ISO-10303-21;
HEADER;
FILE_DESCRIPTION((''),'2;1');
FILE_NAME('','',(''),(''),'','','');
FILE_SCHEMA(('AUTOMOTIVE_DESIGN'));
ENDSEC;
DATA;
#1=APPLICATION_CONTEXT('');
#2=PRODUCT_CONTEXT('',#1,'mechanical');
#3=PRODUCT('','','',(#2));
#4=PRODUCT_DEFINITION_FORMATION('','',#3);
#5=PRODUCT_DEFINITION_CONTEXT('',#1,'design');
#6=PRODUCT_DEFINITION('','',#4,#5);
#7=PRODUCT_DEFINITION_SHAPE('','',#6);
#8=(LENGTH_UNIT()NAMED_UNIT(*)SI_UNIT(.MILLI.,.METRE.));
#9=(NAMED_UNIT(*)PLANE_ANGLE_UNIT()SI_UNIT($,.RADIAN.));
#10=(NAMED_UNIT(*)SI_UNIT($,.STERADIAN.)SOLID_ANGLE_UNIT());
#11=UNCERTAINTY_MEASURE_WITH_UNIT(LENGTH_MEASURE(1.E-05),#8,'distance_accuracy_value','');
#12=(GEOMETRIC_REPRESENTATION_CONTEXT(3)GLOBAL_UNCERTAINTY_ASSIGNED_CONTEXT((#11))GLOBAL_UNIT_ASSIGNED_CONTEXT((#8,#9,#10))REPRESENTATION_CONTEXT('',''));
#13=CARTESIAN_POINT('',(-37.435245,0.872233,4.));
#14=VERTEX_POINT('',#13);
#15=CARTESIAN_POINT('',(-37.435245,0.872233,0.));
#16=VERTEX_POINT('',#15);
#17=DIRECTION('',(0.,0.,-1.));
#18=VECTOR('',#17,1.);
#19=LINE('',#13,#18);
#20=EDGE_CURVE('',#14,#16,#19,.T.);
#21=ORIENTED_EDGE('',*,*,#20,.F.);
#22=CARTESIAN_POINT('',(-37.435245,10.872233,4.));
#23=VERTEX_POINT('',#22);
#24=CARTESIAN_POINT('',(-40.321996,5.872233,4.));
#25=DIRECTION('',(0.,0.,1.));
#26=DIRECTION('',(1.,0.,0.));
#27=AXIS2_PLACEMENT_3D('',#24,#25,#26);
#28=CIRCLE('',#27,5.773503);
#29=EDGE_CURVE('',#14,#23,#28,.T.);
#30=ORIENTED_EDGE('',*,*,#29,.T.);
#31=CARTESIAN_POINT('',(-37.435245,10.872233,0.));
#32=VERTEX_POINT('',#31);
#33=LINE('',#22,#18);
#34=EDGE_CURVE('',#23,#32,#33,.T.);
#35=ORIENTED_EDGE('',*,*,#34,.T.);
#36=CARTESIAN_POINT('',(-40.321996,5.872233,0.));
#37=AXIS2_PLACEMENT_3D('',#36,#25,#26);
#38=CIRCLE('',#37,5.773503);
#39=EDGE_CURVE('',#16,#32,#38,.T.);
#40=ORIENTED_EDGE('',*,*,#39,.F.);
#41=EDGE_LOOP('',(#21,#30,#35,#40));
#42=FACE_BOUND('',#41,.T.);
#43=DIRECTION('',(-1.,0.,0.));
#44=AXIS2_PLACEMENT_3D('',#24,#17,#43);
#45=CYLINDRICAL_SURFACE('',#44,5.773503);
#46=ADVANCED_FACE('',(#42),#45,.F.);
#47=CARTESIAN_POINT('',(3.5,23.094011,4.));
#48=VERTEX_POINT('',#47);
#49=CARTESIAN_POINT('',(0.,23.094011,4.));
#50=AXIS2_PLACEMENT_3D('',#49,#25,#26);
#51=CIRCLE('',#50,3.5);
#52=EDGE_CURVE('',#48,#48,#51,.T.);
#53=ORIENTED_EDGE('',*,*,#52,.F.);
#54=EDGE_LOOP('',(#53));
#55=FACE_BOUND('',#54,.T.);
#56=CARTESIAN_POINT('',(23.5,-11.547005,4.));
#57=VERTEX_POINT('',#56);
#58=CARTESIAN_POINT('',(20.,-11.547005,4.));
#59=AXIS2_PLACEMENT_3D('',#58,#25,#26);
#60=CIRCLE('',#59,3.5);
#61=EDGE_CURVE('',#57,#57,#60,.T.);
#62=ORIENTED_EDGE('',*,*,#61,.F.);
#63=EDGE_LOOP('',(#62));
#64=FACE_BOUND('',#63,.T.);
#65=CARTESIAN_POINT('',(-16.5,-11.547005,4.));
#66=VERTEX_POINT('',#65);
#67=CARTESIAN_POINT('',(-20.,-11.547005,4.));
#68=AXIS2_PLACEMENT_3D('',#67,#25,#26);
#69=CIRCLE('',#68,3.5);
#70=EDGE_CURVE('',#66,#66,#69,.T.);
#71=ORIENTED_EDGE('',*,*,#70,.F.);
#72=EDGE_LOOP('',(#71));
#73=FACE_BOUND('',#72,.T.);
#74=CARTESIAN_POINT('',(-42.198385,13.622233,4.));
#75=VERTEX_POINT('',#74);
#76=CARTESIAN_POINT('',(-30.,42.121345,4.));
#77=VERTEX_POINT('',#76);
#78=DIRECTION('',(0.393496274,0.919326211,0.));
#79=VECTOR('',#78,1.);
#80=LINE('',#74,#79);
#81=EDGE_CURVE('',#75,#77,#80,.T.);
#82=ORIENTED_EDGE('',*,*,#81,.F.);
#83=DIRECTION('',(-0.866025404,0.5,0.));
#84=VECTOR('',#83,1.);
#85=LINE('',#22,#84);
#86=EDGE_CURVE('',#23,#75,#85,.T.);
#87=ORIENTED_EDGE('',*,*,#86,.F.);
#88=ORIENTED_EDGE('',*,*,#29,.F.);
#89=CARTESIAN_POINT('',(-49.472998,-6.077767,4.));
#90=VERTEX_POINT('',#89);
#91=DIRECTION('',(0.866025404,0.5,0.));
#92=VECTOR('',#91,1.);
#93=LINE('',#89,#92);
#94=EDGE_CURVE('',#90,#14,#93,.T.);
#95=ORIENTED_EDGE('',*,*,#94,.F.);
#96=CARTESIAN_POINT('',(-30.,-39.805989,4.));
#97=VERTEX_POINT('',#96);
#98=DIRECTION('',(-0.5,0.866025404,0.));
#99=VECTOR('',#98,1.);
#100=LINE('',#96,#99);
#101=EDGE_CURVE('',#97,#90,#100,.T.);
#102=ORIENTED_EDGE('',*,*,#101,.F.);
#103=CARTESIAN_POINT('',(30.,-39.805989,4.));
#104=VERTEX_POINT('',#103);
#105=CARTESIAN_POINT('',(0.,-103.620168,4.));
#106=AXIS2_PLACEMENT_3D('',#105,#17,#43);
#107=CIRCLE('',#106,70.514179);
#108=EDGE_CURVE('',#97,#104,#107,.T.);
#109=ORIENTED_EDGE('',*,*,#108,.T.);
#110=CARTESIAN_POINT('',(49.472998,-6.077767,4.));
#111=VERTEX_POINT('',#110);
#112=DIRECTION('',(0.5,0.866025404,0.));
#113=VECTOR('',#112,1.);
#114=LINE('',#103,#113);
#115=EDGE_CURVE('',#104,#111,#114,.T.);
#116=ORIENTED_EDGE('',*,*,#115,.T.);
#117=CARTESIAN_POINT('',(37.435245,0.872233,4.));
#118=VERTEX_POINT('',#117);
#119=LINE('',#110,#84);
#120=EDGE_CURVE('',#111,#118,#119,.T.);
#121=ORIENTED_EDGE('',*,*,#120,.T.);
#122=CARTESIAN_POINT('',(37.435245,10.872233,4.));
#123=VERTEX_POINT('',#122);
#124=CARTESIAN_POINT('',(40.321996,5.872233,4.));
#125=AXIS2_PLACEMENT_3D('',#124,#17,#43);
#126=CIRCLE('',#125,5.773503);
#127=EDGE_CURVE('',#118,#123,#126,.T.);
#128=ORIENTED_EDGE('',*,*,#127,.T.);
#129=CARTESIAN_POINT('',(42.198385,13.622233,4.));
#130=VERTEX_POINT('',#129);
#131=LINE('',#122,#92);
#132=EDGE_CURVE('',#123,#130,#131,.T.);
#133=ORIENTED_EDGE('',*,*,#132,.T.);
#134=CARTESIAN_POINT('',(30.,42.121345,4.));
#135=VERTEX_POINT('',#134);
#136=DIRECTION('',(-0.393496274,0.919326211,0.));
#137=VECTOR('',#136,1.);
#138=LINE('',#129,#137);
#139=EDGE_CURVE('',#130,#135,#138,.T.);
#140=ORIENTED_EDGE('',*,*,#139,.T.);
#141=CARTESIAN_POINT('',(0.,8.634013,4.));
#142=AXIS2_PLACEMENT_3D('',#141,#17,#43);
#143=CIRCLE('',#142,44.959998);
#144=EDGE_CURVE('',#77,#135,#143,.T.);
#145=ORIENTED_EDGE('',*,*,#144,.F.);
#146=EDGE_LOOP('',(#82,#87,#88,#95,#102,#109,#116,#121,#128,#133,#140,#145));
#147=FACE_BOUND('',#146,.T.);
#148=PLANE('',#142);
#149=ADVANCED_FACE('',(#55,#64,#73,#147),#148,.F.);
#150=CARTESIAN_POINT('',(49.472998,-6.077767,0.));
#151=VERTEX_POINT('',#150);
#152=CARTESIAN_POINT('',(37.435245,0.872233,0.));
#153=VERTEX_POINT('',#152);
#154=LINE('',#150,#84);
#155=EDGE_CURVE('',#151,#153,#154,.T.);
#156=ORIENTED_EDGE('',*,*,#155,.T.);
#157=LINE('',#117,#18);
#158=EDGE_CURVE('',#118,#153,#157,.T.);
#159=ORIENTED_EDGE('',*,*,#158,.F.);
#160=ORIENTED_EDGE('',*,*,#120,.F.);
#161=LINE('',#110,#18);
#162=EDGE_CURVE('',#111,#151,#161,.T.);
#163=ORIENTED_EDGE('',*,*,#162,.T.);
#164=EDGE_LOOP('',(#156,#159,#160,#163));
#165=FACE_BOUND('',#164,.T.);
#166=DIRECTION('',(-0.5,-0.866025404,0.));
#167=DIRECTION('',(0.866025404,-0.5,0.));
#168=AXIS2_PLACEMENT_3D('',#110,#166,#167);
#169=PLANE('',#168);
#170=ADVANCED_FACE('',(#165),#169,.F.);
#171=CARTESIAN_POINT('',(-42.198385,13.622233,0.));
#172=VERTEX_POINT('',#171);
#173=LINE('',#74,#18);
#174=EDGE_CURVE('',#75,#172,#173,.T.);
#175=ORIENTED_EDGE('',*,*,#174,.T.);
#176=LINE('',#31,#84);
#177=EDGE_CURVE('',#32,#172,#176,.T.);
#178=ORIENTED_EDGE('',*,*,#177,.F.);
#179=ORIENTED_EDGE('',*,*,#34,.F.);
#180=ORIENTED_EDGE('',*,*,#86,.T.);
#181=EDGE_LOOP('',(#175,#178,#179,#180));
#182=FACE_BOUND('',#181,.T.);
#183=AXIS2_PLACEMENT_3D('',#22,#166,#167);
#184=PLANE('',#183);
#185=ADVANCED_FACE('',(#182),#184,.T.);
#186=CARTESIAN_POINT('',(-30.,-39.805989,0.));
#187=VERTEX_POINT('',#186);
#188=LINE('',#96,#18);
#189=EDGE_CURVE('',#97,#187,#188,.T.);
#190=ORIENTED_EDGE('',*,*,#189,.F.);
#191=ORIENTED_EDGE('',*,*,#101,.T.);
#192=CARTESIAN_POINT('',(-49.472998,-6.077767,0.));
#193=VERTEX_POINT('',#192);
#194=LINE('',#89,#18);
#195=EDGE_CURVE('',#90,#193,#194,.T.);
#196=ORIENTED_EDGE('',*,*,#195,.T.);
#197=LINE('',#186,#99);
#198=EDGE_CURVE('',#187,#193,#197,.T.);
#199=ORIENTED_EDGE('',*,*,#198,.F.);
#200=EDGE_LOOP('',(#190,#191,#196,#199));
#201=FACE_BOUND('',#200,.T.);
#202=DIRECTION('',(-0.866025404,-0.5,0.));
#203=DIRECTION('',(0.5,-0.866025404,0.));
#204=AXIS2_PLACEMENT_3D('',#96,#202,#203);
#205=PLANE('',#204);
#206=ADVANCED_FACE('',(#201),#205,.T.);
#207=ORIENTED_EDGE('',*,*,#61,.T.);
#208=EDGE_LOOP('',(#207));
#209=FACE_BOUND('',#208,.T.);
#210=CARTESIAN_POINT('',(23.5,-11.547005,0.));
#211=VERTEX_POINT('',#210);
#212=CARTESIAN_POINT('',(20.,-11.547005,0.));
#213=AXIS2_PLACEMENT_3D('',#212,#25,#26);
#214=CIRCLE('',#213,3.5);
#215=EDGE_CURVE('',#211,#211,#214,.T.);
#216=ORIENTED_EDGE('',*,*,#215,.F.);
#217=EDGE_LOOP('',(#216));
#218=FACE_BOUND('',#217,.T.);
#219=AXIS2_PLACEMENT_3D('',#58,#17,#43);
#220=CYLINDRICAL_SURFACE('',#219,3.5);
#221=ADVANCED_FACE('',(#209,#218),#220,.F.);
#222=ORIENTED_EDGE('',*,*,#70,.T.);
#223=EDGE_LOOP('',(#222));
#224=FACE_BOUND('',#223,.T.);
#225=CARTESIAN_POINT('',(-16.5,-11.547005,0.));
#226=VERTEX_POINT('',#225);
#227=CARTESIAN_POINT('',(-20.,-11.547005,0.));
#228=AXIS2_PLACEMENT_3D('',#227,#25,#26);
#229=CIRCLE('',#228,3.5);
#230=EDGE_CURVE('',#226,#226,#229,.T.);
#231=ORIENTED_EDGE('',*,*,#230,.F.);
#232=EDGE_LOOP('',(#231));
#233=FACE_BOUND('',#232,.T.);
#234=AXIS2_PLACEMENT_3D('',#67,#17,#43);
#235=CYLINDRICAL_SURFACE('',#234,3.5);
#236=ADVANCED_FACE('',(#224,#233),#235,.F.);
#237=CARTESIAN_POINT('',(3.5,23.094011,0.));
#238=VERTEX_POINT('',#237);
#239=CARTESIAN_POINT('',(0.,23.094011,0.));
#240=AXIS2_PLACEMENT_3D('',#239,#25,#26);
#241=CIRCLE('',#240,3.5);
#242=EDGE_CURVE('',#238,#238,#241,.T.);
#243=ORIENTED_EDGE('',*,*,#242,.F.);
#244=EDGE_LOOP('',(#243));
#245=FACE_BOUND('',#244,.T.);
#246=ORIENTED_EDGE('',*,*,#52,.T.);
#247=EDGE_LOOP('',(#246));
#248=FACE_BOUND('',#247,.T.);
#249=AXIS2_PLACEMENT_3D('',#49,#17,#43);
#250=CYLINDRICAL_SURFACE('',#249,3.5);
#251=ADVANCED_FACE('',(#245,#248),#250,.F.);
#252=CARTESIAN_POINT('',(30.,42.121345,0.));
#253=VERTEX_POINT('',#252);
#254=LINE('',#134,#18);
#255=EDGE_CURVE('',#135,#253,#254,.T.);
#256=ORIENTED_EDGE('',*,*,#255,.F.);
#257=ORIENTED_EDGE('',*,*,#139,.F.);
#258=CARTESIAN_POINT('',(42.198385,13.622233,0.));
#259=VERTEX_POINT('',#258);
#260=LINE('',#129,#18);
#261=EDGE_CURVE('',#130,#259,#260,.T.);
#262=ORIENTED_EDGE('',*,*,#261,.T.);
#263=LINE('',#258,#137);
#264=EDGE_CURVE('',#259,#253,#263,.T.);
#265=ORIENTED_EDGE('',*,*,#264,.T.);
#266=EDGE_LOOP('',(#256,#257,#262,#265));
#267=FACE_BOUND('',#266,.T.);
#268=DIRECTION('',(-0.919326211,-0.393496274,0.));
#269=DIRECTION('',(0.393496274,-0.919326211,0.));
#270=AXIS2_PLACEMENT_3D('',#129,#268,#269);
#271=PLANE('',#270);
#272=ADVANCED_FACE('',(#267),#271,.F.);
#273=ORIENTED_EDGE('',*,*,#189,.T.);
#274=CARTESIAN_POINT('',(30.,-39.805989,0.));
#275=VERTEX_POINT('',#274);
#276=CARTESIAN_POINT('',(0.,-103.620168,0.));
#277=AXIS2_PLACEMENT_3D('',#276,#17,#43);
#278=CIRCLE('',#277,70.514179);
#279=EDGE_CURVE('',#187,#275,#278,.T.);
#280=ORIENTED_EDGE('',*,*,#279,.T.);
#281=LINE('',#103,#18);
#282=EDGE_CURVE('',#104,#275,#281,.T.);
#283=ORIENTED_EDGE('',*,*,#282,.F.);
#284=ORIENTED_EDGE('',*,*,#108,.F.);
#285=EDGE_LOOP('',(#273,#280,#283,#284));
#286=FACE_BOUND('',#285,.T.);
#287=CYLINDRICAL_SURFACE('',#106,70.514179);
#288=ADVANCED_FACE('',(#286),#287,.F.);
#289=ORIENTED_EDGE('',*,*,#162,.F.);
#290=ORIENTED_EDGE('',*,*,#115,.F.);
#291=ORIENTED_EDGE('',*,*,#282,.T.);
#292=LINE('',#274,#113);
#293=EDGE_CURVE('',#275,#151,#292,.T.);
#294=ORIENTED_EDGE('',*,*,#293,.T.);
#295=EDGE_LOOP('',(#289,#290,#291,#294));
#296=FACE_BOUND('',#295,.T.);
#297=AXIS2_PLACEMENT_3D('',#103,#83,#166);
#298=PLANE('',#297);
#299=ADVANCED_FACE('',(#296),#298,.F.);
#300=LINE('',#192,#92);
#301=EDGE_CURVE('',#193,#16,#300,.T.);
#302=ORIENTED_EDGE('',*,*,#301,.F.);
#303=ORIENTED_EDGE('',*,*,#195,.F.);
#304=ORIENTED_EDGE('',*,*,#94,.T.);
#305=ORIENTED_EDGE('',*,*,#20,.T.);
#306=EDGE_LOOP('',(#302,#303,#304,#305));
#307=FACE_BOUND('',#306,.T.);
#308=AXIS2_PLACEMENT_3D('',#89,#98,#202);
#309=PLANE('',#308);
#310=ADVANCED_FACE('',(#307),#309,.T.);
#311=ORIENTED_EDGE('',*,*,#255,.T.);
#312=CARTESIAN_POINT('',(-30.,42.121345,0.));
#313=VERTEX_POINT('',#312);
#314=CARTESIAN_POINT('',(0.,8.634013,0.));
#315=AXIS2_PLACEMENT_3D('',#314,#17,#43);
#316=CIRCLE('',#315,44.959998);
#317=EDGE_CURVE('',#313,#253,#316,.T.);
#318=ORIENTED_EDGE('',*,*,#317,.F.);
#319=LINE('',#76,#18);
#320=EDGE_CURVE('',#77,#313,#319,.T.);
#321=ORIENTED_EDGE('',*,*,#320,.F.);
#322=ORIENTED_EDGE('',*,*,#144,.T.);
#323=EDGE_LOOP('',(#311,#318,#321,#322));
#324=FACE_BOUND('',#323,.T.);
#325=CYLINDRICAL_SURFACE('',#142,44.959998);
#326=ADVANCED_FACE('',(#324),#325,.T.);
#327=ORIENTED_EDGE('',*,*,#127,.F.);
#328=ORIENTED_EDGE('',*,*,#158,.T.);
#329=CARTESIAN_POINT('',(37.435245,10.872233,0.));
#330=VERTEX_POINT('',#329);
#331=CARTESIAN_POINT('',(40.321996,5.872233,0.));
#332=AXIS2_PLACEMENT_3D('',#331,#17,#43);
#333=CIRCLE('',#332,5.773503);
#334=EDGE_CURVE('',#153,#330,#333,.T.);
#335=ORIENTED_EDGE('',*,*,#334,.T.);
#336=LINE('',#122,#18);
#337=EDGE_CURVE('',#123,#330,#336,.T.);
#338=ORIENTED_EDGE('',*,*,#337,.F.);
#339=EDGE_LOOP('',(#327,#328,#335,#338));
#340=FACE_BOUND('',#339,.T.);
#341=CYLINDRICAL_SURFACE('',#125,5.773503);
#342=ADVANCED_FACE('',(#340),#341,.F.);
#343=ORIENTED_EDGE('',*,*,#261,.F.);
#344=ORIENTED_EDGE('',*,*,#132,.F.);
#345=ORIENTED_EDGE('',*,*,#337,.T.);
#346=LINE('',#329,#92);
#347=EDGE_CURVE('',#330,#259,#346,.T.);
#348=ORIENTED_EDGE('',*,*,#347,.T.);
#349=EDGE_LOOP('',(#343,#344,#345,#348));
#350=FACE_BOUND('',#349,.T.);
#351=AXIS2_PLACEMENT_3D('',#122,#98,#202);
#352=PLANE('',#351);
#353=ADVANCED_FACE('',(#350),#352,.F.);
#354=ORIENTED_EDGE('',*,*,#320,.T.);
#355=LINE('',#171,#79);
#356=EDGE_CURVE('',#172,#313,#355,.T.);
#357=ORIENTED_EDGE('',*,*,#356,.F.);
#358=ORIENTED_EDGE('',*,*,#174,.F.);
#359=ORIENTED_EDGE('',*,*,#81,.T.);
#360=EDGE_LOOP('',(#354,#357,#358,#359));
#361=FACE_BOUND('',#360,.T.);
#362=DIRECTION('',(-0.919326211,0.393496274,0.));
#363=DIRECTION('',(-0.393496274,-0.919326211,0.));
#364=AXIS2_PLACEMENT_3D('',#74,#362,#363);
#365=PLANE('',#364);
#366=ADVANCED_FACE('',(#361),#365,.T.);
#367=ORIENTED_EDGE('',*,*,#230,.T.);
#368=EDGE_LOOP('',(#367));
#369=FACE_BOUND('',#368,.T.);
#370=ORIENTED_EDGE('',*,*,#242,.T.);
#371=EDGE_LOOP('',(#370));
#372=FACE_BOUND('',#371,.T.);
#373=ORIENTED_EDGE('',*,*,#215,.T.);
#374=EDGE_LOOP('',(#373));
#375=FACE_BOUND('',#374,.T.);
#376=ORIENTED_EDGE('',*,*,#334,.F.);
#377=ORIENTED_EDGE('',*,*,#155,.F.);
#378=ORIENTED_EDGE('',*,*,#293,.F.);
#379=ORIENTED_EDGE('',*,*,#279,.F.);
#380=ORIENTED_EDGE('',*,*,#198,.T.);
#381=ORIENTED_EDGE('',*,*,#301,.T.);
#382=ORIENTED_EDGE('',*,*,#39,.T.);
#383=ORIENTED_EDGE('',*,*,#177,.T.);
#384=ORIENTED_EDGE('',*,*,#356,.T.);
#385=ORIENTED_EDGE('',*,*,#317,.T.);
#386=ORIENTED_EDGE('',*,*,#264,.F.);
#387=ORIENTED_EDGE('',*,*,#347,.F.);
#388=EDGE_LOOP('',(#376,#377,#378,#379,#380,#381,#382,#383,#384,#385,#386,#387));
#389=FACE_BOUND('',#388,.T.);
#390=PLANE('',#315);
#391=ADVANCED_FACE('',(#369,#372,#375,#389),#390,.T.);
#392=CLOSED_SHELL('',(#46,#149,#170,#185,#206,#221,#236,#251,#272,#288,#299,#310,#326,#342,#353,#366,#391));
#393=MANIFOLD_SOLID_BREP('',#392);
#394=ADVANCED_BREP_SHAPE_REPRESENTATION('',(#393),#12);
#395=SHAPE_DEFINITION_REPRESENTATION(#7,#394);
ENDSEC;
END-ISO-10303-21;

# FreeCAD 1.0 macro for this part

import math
import FreeCAD as App
import Part
import Sketcher
Q = App.Units.Quantity

doc = App.newDocument("Part")
body = doc.addObject("PartDesign::Body", "Body")

sketch1 = doc.addObject("Sketcher::SketchObject", "Sketch")
body.addObject(sketch1)
sketch1.AttachmentSupport = (doc.XY_Plane, [""])
sketch1.MapMode = "FlatFace"
sketch1.addGeometry([
    Part.LineSegment(App.Vector(-49.472998, -6.077767, 0), App.Vector(-30, -39.805989, 0)),
    Part.ArcOfCircle(Part.Circle(App.Vector(0, -103.620168, 0), App.Vector(0, 0, 1), 70.514179), math.radians(64.821081), math.radians(115.178919)),
    Part.LineSegment(App.Vector(30, -39.805989, 0), App.Vector(49.472998, -6.077767, 0)),
    Part.LineSegment(App.Vector(49.472998, -6.077767, 0), App.Vector(37.435245, 0.872233, 0)),
    Part.ArcOfCircle(Part.Circle(App.Vector(40.321996, 5.872233, 0), App.Vector(0, 0, 1), 5.773503), math.radians(120), math.radians(240)),
    Part.LineSegment(App.Vector(37.435245, 10.872233, 0), App.Vector(42.198385, 13.622233, 0)),
    Part.LineSegment(App.Vector(42.198385, 13.622233, 0), App.Vector(30, 42.121345, 0)),
    Part.ArcOfCircle(Part.Circle(App.Vector(0, 8.634013, 0), App.Vector(0, 0, 1), 44.959998), math.radians(48.144073), math.radians(131.855927)),
    Part.LineSegment(App.Vector(-30, 42.121345, 0), App.Vector(-42.198385, 13.622233, 0)),
    Part.LineSegment(App.Vector(-42.198385, 13.622233, 0), App.Vector(-37.435245, 10.872233, 0)),
    Part.ArcOfCircle(Part.Circle(App.Vector(-40.321996, 5.872233, 0), App.Vector(0, 0, 1), 5.773503), math.radians(-60), math.radians(60)),
    Part.LineSegment(App.Vector(-37.435245, 0.872233, 0), App.Vector(-49.472998, -6.077767, 0)),
    Part.Circle(App.Vector(20, -11.547005, 0), App.Vector(0, 0, 1), 3.5),
    Part.Circle(App.Vector(-20, -11.547005, 0), App.Vector(0, 0, 1), 3.5),
    Part.Circle(App.Vector(0, 23.094011, 0), App.Vector(0, 0, 1), 3.5),
], False)
sketch1.addConstraint([
    Sketcher.Constraint("Coincident", 0, 2, 1, 2),
    Sketcher.Constraint("Coincident", 1, 1, 2, 1),
    Sketcher.Constraint("Coincident", 2, 2, 3, 1),
    Sketcher.Constraint("Tangent", 3, 2, 4, 2),
    Sketcher.Constraint("Tangent", 4, 1, 5, 1),
    Sketcher.Constraint("Coincident", 5, 2, 6, 1),
    Sketcher.Constraint("Coincident", 6, 2, 7, 1),
    Sketcher.Constraint("Coincident", 7, 2, 8, 1),
    Sketcher.Constraint("Coincident", 8, 2, 9, 1),
    Sketcher.Constraint("Tangent", 9, 2, 10, 2),
    Sketcher.Constraint("Tangent", 10, 1, 11, 1),
    Sketcher.Constraint("Coincident", 11, 2, 0, 1),
    Sketcher.Constraint("Equal", 4, 10),
    Sketcher.Constraint("Equal", 12, 13),
    Sketcher.Constraint("Equal", 13, 14),
    Sketcher.Constraint("Symmetric", 4, 3, 10, 3, -2),
    Sketcher.Constraint("Symmetric", 12, 3, 13, 3, -2),
    Sketcher.Constraint("Symmetric", 0, 2, 1, 1, -2),
    Sketcher.Constraint("Symmetric", 6, 2, 7, 2, -2),
    Sketcher.Constraint("Symmetric", 5, 2, 8, 2, -2),
    Sketcher.Constraint("Symmetric", 2, 2, 11, 2, -2),
    Sketcher.Constraint("PointOnObject", 14, 3, -2),
    Sketcher.Constraint("Perpendicular", 2, 3),
    Sketcher.Constraint("Perpendicular", 0, 5),
    Sketcher.Constraint("Vertical", 1, 1, 6, 2),
    Sketcher.Constraint("Diameter", 12, Q("7 mm")),
    Sketcher.Constraint("Angle", 0, Q("-60 deg")),
    Sketcher.Constraint("Radius", 7, Q("44.959998 mm")),
    Sketcher.Constraint("Distance", 6, Q("31 mm")),
    Sketcher.Constraint("DistanceX", -1, 1, 12, 3, Q("20 mm")),
    Sketcher.Constraint("DistanceX", 0, 2, -1, 1, Q("30 mm")),
    Sketcher.Constraint("DistanceY", 3, 2, 4, 3, Q("5 mm")),
    Sketcher.Constraint("Distance", 3, Q("13.9 mm")),
    Sketcher.Constraint("Distance", 5, Q("5.5 mm")),
    Sketcher.Constraint("DistanceY", 0, 2, 14, 3, Q("62.9 mm")),
    Sketcher.Constraint("Radius", 1, Q("70.514179 mm")),
    Sketcher.Constraint("DistanceY", 7, 3, 14, 3, Q("14.459998 mm")),
    Sketcher.Constraint("DistanceY", 1, 3, -1, 1, Q("103.620168 mm")),
    Sketcher.Constraint("DistanceY", 12, 3, 7, 3, Q("20.181018 mm")),
])
pad1 = doc.addObject("PartDesign::Pad", "Pad")
body.addObject(pad1)
pad1.Profile = sketch1
pad1.Length = 4

doc.recompute()
